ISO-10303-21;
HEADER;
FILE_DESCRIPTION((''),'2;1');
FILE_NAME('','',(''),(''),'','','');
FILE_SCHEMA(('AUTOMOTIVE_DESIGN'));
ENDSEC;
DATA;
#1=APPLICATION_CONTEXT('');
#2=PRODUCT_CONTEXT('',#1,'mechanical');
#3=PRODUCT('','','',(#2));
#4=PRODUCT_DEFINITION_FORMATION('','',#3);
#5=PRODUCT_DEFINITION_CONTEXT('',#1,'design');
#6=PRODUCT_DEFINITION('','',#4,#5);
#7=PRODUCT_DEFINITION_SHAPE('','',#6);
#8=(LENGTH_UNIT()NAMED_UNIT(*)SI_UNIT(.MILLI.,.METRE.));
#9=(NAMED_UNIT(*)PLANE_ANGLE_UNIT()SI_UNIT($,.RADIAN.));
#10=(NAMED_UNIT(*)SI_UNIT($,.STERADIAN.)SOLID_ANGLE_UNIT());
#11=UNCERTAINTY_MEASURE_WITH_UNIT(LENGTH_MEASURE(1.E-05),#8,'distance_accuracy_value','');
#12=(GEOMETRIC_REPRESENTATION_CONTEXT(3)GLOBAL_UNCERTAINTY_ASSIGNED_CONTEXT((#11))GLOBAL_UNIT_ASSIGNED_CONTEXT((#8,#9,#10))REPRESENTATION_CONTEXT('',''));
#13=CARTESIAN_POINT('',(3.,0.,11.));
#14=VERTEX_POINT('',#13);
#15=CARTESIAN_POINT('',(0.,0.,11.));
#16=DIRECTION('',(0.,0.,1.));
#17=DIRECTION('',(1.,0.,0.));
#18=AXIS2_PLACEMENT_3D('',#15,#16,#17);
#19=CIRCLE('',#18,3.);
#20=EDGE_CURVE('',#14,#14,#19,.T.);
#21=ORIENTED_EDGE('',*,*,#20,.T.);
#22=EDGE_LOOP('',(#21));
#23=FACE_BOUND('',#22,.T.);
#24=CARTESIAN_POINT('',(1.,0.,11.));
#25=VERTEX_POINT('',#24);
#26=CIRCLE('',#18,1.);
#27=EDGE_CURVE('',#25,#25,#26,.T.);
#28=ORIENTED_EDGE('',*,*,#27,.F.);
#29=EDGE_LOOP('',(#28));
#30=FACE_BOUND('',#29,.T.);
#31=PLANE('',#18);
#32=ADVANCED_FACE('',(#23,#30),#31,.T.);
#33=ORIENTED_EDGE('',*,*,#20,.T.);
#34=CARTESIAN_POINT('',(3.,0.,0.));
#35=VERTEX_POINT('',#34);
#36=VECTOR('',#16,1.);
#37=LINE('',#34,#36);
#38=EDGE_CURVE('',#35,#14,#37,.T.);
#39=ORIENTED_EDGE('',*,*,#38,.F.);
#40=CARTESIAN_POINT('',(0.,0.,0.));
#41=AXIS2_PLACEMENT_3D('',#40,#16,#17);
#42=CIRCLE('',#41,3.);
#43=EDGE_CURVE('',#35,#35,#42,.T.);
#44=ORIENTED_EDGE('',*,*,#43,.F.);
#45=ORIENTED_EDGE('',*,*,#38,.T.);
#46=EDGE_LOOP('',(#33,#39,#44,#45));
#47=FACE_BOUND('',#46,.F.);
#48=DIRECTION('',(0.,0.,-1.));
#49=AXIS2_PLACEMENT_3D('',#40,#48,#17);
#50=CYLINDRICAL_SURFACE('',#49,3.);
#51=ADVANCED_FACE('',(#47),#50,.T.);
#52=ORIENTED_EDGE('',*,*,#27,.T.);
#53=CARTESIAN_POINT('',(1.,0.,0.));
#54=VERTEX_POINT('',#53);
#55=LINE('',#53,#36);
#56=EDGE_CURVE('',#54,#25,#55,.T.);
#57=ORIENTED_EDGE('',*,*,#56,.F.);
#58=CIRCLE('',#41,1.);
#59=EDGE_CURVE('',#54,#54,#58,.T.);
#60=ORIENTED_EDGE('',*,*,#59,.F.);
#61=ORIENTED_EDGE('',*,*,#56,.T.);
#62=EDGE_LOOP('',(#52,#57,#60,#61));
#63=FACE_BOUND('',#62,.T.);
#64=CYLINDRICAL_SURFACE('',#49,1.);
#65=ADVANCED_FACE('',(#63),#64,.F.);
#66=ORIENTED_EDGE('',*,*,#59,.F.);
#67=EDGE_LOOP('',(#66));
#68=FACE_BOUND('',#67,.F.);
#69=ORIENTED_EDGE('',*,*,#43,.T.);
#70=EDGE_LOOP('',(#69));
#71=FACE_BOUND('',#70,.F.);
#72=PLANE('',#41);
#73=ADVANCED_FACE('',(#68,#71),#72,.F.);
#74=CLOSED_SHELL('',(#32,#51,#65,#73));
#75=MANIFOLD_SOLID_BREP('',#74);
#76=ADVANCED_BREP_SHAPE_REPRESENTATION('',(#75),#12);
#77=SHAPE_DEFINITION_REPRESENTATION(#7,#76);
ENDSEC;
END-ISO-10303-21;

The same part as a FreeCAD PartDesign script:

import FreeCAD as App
import Part
import Sketcher

doc = App.newDocument("Part")
body = doc.addObject("PartDesign::Body", "Body")

sketch1 = body.newObject("Sketcher::SketchObject", "Sketch")
sketch1.AttachmentSupport = (doc.getObject("XY_Plane"), [""])
sketch1.MapMode = "FlatFace"
sketch1.addGeometry([
    Part.Circle(App.Vector(0, 0, 0), App.Vector(0, 0, 1), 3),
    Part.Circle(App.Vector(0, 0, 0), App.Vector(0, 0, 1), 1),
], False)
sketch1.addConstraint([
    Sketcher.Constraint("Coincident", 0, 3, -1, 1),
    Sketcher.Constraint("Coincident", 1, 3, -1, 1),
    Sketcher.Constraint("Diameter", 0, 6.0),
    Sketcher.Constraint("Diameter", 1, 2.0),
])
pad1 = body.newObject("PartDesign::Pad", "Pad")
pad1.Profile = sketch1
pad1.Length = 11

doc.recompute()
